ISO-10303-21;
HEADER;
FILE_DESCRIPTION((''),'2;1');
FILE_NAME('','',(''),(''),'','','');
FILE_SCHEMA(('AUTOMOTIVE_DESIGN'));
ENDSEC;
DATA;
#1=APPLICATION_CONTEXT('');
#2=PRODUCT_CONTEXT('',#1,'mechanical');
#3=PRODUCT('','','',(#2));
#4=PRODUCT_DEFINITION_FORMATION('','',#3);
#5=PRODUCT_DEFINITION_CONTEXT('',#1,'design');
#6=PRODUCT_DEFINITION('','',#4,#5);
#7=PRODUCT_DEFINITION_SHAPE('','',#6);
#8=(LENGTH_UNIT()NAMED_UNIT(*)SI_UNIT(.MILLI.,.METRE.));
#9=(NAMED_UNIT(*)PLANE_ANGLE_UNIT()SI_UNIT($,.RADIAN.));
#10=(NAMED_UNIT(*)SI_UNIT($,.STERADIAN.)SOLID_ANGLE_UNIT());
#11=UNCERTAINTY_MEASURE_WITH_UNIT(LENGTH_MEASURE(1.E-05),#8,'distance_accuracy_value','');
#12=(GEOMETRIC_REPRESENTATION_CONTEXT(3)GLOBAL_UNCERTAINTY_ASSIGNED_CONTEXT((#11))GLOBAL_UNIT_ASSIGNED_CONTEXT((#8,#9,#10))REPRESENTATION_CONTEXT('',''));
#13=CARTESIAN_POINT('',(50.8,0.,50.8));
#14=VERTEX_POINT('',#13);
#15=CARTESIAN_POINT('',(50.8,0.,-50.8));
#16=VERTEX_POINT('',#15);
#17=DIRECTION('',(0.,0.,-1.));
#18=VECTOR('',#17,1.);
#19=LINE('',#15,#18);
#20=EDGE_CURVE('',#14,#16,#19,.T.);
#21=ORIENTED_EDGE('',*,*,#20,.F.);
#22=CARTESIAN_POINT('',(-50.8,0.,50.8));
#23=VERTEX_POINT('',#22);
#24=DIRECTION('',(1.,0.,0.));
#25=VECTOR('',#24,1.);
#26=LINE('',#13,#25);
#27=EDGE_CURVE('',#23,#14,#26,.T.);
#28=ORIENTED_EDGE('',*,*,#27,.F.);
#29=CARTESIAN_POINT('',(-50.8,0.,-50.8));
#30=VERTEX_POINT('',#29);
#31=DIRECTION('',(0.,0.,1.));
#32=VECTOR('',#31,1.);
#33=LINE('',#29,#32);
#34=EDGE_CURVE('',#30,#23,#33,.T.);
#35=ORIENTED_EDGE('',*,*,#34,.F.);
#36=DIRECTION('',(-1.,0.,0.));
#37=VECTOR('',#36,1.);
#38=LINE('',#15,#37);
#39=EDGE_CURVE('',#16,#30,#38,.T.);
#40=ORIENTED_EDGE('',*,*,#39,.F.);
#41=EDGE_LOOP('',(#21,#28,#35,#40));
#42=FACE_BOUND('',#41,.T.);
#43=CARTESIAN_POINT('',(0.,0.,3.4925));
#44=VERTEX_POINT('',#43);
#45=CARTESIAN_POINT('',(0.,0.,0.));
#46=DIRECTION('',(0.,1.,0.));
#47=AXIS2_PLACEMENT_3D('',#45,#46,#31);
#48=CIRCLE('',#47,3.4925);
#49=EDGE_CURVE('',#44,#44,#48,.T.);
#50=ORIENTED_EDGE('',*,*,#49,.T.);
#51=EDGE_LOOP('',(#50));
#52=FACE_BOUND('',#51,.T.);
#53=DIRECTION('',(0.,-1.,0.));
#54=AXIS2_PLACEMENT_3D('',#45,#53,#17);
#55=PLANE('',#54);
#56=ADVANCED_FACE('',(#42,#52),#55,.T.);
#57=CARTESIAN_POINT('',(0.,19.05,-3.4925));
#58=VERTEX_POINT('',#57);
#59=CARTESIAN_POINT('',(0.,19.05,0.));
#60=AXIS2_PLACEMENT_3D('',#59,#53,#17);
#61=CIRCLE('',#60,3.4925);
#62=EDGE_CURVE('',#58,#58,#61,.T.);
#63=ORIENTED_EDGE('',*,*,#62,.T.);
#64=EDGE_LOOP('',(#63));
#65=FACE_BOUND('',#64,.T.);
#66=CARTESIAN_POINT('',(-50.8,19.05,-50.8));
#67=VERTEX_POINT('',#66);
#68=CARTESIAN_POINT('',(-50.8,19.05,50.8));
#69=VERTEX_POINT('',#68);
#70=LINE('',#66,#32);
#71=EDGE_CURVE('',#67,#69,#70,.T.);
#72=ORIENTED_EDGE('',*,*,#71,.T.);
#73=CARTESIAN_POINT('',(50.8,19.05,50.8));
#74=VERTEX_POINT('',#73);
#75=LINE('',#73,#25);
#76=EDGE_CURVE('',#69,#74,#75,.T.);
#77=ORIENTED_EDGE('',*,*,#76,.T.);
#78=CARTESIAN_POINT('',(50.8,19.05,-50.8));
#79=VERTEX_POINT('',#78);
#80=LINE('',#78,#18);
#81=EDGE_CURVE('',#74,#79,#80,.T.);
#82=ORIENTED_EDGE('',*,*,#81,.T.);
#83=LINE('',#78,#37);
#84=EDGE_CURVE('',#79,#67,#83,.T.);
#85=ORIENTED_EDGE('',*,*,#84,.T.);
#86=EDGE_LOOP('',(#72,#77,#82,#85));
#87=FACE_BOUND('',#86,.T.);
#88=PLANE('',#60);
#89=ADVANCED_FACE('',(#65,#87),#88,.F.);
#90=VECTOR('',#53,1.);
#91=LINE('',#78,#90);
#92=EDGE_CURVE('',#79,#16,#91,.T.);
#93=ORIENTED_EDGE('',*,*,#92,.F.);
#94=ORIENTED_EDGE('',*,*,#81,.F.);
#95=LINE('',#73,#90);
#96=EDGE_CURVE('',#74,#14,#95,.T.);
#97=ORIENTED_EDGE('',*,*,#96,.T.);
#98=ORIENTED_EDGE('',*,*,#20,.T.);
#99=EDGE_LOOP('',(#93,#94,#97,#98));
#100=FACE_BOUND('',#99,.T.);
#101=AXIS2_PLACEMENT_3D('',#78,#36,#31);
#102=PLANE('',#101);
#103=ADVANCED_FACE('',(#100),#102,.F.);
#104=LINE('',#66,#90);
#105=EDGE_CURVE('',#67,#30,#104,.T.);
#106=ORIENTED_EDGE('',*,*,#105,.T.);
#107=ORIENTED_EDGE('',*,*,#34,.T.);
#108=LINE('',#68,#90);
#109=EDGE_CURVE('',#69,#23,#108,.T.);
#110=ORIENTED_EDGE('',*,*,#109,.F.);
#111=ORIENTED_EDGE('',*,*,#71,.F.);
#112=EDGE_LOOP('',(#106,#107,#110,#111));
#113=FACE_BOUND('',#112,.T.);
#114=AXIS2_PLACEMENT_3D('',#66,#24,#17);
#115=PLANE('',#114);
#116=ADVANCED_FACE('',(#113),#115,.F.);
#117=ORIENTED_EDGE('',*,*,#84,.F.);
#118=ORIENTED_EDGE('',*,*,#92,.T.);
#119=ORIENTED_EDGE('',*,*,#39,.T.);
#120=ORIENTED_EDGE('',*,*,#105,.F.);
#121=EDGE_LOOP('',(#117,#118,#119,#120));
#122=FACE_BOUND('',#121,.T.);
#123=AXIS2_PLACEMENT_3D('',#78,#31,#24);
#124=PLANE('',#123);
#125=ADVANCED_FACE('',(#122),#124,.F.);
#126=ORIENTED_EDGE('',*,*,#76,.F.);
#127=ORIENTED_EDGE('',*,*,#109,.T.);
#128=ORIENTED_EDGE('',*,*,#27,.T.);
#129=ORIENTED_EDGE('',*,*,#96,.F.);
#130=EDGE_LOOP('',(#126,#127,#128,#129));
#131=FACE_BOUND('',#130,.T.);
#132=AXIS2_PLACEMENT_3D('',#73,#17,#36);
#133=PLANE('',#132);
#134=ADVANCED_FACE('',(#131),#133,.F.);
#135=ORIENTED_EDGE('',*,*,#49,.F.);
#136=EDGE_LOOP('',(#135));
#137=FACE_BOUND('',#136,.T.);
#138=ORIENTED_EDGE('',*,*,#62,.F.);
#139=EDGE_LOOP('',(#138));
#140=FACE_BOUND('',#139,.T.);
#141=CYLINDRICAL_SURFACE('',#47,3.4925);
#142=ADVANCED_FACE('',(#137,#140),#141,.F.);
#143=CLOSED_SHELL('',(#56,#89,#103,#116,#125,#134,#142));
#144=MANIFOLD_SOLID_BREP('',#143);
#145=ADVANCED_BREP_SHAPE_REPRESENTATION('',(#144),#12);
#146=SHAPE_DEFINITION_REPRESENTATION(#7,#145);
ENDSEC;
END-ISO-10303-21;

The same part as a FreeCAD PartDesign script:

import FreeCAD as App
import Part
import Sketcher

V = App.Vector
Q = App.Units.Quantity


def add_polygon(sketch, points):
    """Adds a closed chain of lines whose ends are joined by coincident constraints."""
    first, n = sketch.GeometryCount, len(points)
    for a, b in zip(points, points[1:] + points[:1]):
        sketch.addGeometry(Part.LineSegment(App.Vector(*a, 0), App.Vector(*b, 0)), False)
    for i in range(n):
        sketch.addConstraint(Sketcher.Constraint("Coincident", first + i, 2, first + (i + 1) % n, 1))

doc = App.newDocument("Part")
params = doc.addObject("Spreadsheet::Sheet", "Params")
for row, (alias, value) in enumerate([
    ("sketch1_width", "4 in"),
    ("pad1_length", "0.75 in"),
    ("sketch2_diameter", "0.275 in"),
], start=1):
    params.set(f"A{row}", alias)
    params.set(f"B{row}", "=" + value)
    params.setAlias(f"B{row}", alias)

body = doc.addObject("PartDesign::Body", "Body")

# Sketch on XZ plane
sketch1 = doc.addObject("Sketcher::SketchObject", "Sketch")
body.addObject(sketch1)
sketch1.AttachmentSupport = (doc.XZ_Plane, [""])
sketch1.MapMode = "FlatFace"
add_polygon(sketch1, [(-50.8, -50.8), (-50.8, 50.8), (50.8, 50.8), (50.8, -50.8)])  # lines 0-3
sketch1.addConstraint([
    Sketcher.Constraint("Vertical", 0),
    Sketcher.Constraint("Horizontal", 1),
    Sketcher.Constraint("Vertical", 2),
    Sketcher.Constraint("Horizontal", 3),
    Sketcher.Constraint("Symmetric", 0, 2, 2, 2, -1, 1),
    Sketcher.Constraint("Equal", 3, 0),
    Sketcher.Constraint("DistanceX", 1, 1, 1, 2, Q("4 in")),
])
sketch1.setExpression("Constraints[10]", "Params.sketch1_width")
pad1 = doc.addObject("PartDesign::Pad", "Pad")
body.addObject(pad1)
pad1.Profile = sketch1
pad1.setExpression("Length", "Params.pad1_length")
pad1.Reversed = True

# Sketch on XZ plane
sketch2 = doc.addObject("Sketcher::SketchObject", "Sketch001")
body.addObject(sketch2)
sketch2.AttachmentSupport = (doc.XZ_Plane, [""])
sketch2.MapMode = "FlatFace"
sketch2.AttachmentOffset = App.Placement(V(0, 0, -0.75 * 25.4), App.Rotation())
sketch2.addGeometry(Part.Circle(V(0, 0, 0), V(0, 0, 1), 3.4925), False)
sketch2.addConstraint([
    Sketcher.Constraint("Coincident", 0, 3, -1, 1),
    Sketcher.Constraint("Diameter", 0, Q("0.275 in")),
])
sketch2.setExpression("Constraints[1]", "Params.sketch2_diameter")
pocket1 = doc.addObject("PartDesign::Pocket", "Pocket")
body.addObject(pocket1)
pocket1.Profile = sketch2
pocket1.Type = "ThroughAll"
pocket1.Midplane = True

doc.recompute()
